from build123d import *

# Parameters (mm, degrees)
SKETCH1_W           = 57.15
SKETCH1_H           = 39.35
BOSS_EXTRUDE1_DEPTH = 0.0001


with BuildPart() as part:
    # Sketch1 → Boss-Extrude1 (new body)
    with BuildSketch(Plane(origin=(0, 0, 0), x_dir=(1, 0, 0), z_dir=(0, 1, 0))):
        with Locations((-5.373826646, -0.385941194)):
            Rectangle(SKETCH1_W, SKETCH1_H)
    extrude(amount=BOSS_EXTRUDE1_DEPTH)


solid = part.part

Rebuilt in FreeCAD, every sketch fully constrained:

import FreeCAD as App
import Part
import Sketcher
from FreeCAD import Vector
Q = App.Units.Quantity


def add_polygon(sketch, points):
    """Adds a closed chain of lines whose ends are joined by coincident constraints."""
    first, n = sketch.GeometryCount, len(points)
    for a, b in zip(points, points[1:] + points[:1]):
        sketch.addGeometry(Part.LineSegment(App.Vector(*a, 0), App.Vector(*b, 0)), False)
    for i in range(n):
        sketch.addConstraint(Sketcher.Constraint("Coincident", first + i, 2, first + (i + 1) % n, 1))

doc = App.newDocument("Part")
body = doc.addObject("PartDesign::Body", "Body")

sketch1 = body.newObject("Sketcher::SketchObject", "Sketch")
sketch1.AttachmentSupport = (doc.getObject("XZ_Plane"), [""])
sketch1.MapMode = "FlatFace"
add_polygon(sketch1, [(-34, -19), (-34, 20), (23, 20), (23, -19)])
sketch1.addConstraint([
    Sketcher.Constraint("Vertical", 0),
    Sketcher.Constraint("Horizontal", 1),
    Sketcher.Constraint("Vertical", 2),
    Sketcher.Constraint("Horizontal", 3),
    Sketcher.Constraint("DistanceX", 1, 1, 1, 2, Q("2.25 in")),
    Sketcher.Constraint("DistanceY", 0, 1, 0, 2, Q("39.35 mm")),
    Sketcher.Constraint("DistanceY", -1, 1, 0, 2, Q("20.060941 mm")),
    Sketcher.Constraint("DistanceX", 0, 2, -1, 1, Q("33.948827 mm")),
])
pad1 = body.newObject("PartDesign::Pad", "Pad")
pad1.Profile = sketch1
pad1.Length = 0.0001
pad1.Reversed = True

doc.recompute()
